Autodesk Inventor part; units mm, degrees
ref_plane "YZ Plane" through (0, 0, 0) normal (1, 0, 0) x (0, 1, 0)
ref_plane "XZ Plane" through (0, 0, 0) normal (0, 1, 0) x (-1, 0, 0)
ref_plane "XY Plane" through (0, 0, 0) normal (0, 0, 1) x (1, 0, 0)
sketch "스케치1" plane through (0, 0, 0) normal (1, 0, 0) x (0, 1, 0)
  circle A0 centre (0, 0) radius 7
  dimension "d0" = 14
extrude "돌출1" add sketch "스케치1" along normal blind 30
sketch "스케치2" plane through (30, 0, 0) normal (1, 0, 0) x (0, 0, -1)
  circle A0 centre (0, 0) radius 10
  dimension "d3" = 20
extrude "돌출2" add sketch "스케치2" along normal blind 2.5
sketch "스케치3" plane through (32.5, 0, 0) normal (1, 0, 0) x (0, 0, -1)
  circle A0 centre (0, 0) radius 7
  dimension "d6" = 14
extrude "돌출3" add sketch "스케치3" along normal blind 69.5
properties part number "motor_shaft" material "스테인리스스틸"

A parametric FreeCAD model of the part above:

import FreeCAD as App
import Part
import Sketcher
from FreeCAD import Vector

doc = App.newDocument("Part")
body = doc.addObject("PartDesign::Body", "Body")

# Sketch on YZ plane
sketch1 = body.newObject("Sketcher::SketchObject", "Sketch")
sketch1.AttachmentSupport = (doc.getObject("YZ_Plane"), [""])
sketch1.MapMode = "FlatFace"
sketch1.addGeometry(Part.Circle(Vector(0, 0, 0), Vector(0, 0, 1), 7), False)
sketch1.addConstraint([
    Sketcher.Constraint("Coincident", 0, 3, -1, 1),
    Sketcher.Constraint("Diameter", 0, 14.0),
])
pad1 = body.newObject("PartDesign::Pad", "Pad")
pad1.Profile = sketch1
pad1.Length = 30

# Sketch on YZ plane
sketch2 = body.newObject("Sketcher::SketchObject", "Sketch001")
sketch2.AttachmentSupport = (doc.getObject("YZ_Plane"), [""])
sketch2.MapMode = "FlatFace"
sketch2.AttachmentOffset = App.Placement(Vector(0, 0, 30), App.Rotation())
sketch2.addGeometry(Part.Circle(Vector(0, 0, 0), Vector(0, 0, 1), 10), False)
sketch2.addConstraint([
    Sketcher.Constraint("Coincident", 0, 3, -1, 1),
    Sketcher.Constraint("Diameter", 0, 20.0),
])
pad2 = body.newObject("PartDesign::Pad", "Pad001")
pad2.Profile = sketch2
pad2.Length = 2.5

# Sketch on YZ plane
sketch3 = body.newObject("Sketcher::SketchObject", "Sketch002")
sketch3.AttachmentSupport = (doc.getObject("YZ_Plane"), [""])
sketch3.MapMode = "FlatFace"
sketch3.AttachmentOffset = App.Placement(Vector(0, 0, 32.5), App.Rotation())
sketch3.addGeometry(Part.Circle(Vector(0, 0, 0), Vector(0, 0, 1), 7), False)
sketch3.addConstraint([
    Sketcher.Constraint("Coincident", 0, 3, -1, 1),
    Sketcher.Constraint("Diameter", 0, 14.0),
])
pad3 = body.newObject("PartDesign::Pad", "Pad002")
pad3.Profile = sketch3
pad3.Length = 69.5

doc.recompute()
